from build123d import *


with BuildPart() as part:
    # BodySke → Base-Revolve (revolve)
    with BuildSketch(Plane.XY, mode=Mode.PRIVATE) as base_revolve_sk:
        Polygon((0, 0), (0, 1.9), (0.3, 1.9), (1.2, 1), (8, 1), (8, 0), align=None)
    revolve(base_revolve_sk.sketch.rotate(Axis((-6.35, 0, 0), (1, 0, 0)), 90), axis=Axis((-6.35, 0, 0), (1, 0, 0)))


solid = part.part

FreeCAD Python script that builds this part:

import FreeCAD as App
import Part
import Sketcher
Q = App.Units.Quantity

doc = App.newDocument("Part")
body = doc.addObject("PartDesign::Body", "Body")

sketch1 = body.newObject("Sketcher::SketchObject", "Sketch")
sketch1.AttachmentSupport = (doc.getObject("XY_Plane"), [""])
sketch1.MapMode = "FlatFace"
sketch1.addGeometry(Part.LineSegment(App.Vector(0, 1.9, 0), App.Vector(0, 0, 0)), False)
sketch1.addGeometry(Part.LineSegment(App.Vector(0, 0, 0), App.Vector(8, 0, 0)), False)
sketch1.addGeometry(Part.LineSegment(App.Vector(8, 0, 0), App.Vector(8, 1, 0)), False)
sketch1.addGeometry(Part.LineSegment(App.Vector(8, 1, 0), App.Vector(1.2, 1, 0)), False)
sketch1.addGeometry(Part.LineSegment(App.Vector(1.2, 1, 0), App.Vector(0.3, 1.9, 0)), False)
sketch1.addGeometry(Part.LineSegment(App.Vector(0.3, 1.9, 0), App.Vector(0, 1.9, 0)), False)
sketch1.addConstraint(Sketcher.Constraint("Coincident", 0, 2, 1, 1))
sketch1.addConstraint(Sketcher.Constraint("Coincident", 1, 2, 2, 1))
sketch1.addConstraint(Sketcher.Constraint("Coincident", 2, 2, 3, 1))
sketch1.addConstraint(Sketcher.Constraint("Coincident", 3, 2, 4, 1))
sketch1.addConstraint(Sketcher.Constraint("Coincident", 4, 2, 5, 1))
sketch1.addConstraint(Sketcher.Constraint("Coincident", 5, 2, 0, 1))
sketch1.addConstraint(Sketcher.Constraint("Vertical", 0))
sketch1.addConstraint(Sketcher.Constraint("Horizontal", 1))
sketch1.addConstraint(Sketcher.Constraint("Vertical", 2))
sketch1.addConstraint(Sketcher.Constraint("Horizontal", 3))
sketch1.addConstraint(Sketcher.Constraint("Horizontal", 5))
sketch1.addConstraint(Sketcher.Constraint("Coincident", 0, 2, -1, 1))
sketch1.addConstraint(Sketcher.Constraint("DistanceX", 1, 1, 1, 2, 8.0))
sketch1.addConstraint(Sketcher.Constraint("DistanceY", 2, 1, 2, 2, 1.0))
sketch1.addConstraint(Sketcher.Constraint("Angle", 4, Q("135 deg")))
sketch1.addConstraint(Sketcher.Constraint("DistanceX", 3, 2, 3, 1, 6.8))
sketch1.addConstraint(Sketcher.Constraint("DistanceX", 5, 2, 5, 1, 0.3))
revolution = body.newObject("PartDesign::Revolution", "Revolution")
revolution.Profile = sketch1
revolution.ReferenceAxis = (sketch1, ["H_Axis"])
revolution.Angle = 360

doc.recompute()
